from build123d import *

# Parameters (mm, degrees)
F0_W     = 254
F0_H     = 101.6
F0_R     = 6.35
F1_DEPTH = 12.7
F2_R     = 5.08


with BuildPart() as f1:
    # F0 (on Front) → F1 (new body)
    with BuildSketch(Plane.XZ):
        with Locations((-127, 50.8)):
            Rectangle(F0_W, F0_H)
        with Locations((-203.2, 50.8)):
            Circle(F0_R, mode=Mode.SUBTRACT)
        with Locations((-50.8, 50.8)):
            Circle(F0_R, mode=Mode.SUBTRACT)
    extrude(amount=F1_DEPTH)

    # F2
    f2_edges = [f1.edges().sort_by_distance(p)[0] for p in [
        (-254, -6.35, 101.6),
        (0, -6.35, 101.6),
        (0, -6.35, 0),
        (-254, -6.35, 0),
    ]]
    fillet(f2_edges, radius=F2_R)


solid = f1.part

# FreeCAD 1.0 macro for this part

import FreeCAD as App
import Part
import Sketcher
Q = App.Units.Quantity


def edges_at(feature, points):
    """Names of the edges that pass closest to the given points."""
    edges = feature.Shape.Edges
    near = lambda p: min(range(len(edges)), key=lambda i: edges[i].distToShape(Part.Vertex(*p))[0])
    return sorted({f"Edge{near(p) + 1}" for p in points})

doc = App.newDocument("Part")
params = doc.addObject("Spreadsheet::Sheet", "Params")
for row, (alias, value) in enumerate([
    ("sketch1_diameter", "0.5 in"),
    ("sketch1_width", "10 in"),
    ("sketch1_height", "4 in"),
    ("pad1_length", "0.5 in"),
    ("fillet_radius", "0.2 in"),
], start=1):
    params.set(f"A{row}", alias)
    params.set(f"B{row}", "=" + value)
    params.setAlias(f"B{row}", alias)

body = doc.addObject("PartDesign::Body", "Body")

# Sketch on XZ plane
sketch1 = body.newObject("Sketcher::SketchObject", "Sketch")
sketch1.AttachmentSupport = (doc.getObject("XZ_Plane"), [""])
sketch1.MapMode = "FlatFace"
sketch1.addGeometry([
    Part.LineSegment(App.Vector(-254, 101.6, 0), App.Vector(-254, 0, 0)),  # 0
    Part.LineSegment(App.Vector(-254, 0, 0), App.Vector(0, 0, 0)),  # 1
    Part.LineSegment(App.Vector(0, 0, 0), App.Vector(0, 101.6, 0)),  # 2
    Part.LineSegment(App.Vector(0, 101.6, 0), App.Vector(-254, 101.6, 0)),  # 3
    Part.Circle(App.Vector(-203.2, 50.8, 0), App.Vector(0, 0, 1), 6.35),  # 4
    Part.Circle(App.Vector(-50.8, 50.8, 0), App.Vector(0, 0, 1), 6.35),  # 5
], False)
sketch1.addConstraint([
    Sketcher.Constraint("Coincident", 0, 2, 1, 1),
    Sketcher.Constraint("Coincident", 1, 2, 2, 1),
    Sketcher.Constraint("Coincident", 2, 2, 3, 1),
    Sketcher.Constraint("Coincident", 3, 2, 0, 1),
    Sketcher.Constraint("Vertical", 0),
    Sketcher.Constraint("Horizontal", 1),
    Sketcher.Constraint("Vertical", 2),
    Sketcher.Constraint("Horizontal", 3),
    Sketcher.Constraint("Coincident", 1, 2, -1, 1),
    Sketcher.Constraint("Equal", 4, 5),
    Sketcher.Constraint("Horizontal", 4, 3, 5, 3),
    Sketcher.Constraint("Diameter", 4, Q("0.5 in")),
    Sketcher.Constraint("DistanceX", 1, 1, 1, 2, Q("10 in")),
    Sketcher.Constraint("DistanceY", 0, 2, 0, 1, Q("4 in")),
    Sketcher.Constraint("DistanceX", 4, 3, -1, 1, Q("8 in")),
    Sketcher.Constraint("DistanceY", -1, 1, 4, 3, Q("2 in")),
    Sketcher.Constraint("DistanceX", 5, 3, -1, 1, Q("2 in")),
])
sketch1.setExpression("Constraints[11]", "Params.sketch1_diameter")
sketch1.setExpression("Constraints[12]", "Params.sketch1_width")
sketch1.setExpression("Constraints[13]", "Params.sketch1_height")
pad1 = body.newObject("PartDesign::Pad", "Pad")
pad1.Profile = sketch1
pad1.setExpression("Length", "Params.pad1_length")
doc.recompute()

fillet = body.newObject("PartDesign::Fillet", "Fillet")
fillet.Base = (pad1, edges_at(pad1, [
    (-254, -6.35, 101.6),
    (0, -6.35, 101.6),
    (0, -6.35, 0),
    (-254, -6.35, 0),
]))
fillet.setExpression("Radius", "Params.fillet_radius")

doc.recompute()
